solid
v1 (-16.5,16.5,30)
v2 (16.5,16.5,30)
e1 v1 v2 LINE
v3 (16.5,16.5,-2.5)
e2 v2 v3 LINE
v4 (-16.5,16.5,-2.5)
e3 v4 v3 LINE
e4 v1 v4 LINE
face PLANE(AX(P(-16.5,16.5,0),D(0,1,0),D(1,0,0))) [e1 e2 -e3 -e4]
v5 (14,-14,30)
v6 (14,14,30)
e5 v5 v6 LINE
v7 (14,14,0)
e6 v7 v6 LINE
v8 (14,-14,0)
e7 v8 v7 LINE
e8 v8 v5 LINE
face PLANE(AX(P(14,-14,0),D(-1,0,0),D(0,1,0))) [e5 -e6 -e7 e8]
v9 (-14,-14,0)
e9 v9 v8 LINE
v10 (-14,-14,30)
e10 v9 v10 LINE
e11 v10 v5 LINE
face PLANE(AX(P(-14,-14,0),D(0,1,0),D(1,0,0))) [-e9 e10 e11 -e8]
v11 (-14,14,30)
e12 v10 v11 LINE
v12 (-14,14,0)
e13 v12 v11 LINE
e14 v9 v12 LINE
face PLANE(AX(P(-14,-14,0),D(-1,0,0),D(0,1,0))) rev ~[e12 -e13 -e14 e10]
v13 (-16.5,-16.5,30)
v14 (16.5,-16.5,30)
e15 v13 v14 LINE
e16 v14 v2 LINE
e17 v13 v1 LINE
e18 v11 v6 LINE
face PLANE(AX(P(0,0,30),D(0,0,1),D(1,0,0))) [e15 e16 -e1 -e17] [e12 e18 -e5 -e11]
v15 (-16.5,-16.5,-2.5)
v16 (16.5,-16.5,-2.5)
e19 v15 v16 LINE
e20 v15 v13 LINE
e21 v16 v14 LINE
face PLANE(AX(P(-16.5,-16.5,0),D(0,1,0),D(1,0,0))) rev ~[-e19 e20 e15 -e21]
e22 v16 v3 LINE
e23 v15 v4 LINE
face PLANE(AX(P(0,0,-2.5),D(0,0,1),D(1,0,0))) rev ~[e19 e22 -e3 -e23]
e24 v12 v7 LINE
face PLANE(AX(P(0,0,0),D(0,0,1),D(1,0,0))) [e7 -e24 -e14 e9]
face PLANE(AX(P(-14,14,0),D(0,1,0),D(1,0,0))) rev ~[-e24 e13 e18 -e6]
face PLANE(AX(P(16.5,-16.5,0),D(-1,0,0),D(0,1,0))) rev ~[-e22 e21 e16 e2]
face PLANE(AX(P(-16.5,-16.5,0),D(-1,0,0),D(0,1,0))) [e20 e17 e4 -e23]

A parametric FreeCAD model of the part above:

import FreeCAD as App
import Part
import Sketcher

doc = App.newDocument("Part")
body = doc.addObject("PartDesign::Body", "Body")

# Sketch on XY plane
sketch1 = body.newObject("Sketcher::SketchObject", "Sketch")
sketch1.AttachmentSupport = (doc.getObject("XY_Plane"), [""])
sketch1.MapMode = "FlatFace"
sketch1.addGeometry([
    Part.LineSegment(App.Vector(-16, 16, 0), App.Vector(-16, -16, 0)),
    Part.LineSegment(App.Vector(-16, -16, 0), App.Vector(16, -16, 0)),
    Part.LineSegment(App.Vector(16, -16, 0), App.Vector(16, 16, 0)),
    Part.LineSegment(App.Vector(16, 16, 0), App.Vector(-16, 16, 0)),
], False)
sketch1.addConstraint([
    Sketcher.Constraint("Coincident", 0, 2, 1, 1),
    Sketcher.Constraint("Coincident", 1, 2, 2, 1),
    Sketcher.Constraint("Coincident", 2, 2, 3, 1),
    Sketcher.Constraint("Coincident", 3, 2, 0, 1),
    Sketcher.Constraint("Vertical", 0),
    Sketcher.Constraint("Horizontal", 1),
    Sketcher.Constraint("Vertical", 2),
    Sketcher.Constraint("Horizontal", 3),
    Sketcher.Constraint("Symmetric", 0, 2, 2, 2, -1, 1),
    Sketcher.Constraint("Equal", 3, 0),
    Sketcher.Constraint("DistanceX", 1, 1, 1, 2, 33.0),
])
pad1 = body.newObject("PartDesign::Pad", "Pad")
pad1.Profile = sketch1
pad1.Length = 2.5
pad1.Reversed = True

# Sketch on XY plane
sketch2 = body.newObject("Sketcher::SketchObject", "Sketch001")
sketch2.AttachmentSupport = (doc.getObject("XY_Plane"), [""])
sketch2.MapMode = "FlatFace"
sketch2.addGeometry([
    Part.LineSegment(App.Vector(-16, 16, 0), App.Vector(-16, -16, 0)),  # 0
    Part.LineSegment(App.Vector(-16, -16, 0), App.Vector(16, -16, 0)),  # 1
    Part.LineSegment(App.Vector(16, -16, 0), App.Vector(16, 16, 0)),  # 2
    Part.LineSegment(App.Vector(16, 16, 0), App.Vector(-16, 16, 0)),  # 3
    Part.LineSegment(App.Vector(14, -14, 0), App.Vector(-14, -14, 0)),  # 4
    Part.LineSegment(App.Vector(-14, -14, 0), App.Vector(-14, 14, 0)),  # 5
    Part.LineSegment(App.Vector(-14, 14, 0), App.Vector(14, 14, 0)),  # 6
    Part.LineSegment(App.Vector(14, 14, 0), App.Vector(14, -14, 0)),  # 7
], False)
sketch2.addConstraint([
    Sketcher.Constraint("Coincident", 0, 2, 1, 1),
    Sketcher.Constraint("Coincident", 1, 2, 2, 1),
    Sketcher.Constraint("Coincident", 2, 2, 3, 1),
    Sketcher.Constraint("Coincident", 3, 2, 0, 1),
    Sketcher.Constraint("Coincident", 4, 2, 5, 1),
    Sketcher.Constraint("Coincident", 5, 2, 6, 1),
    Sketcher.Constraint("Coincident", 6, 2, 7, 1),
    Sketcher.Constraint("Coincident", 7, 2, 4, 1),
    Sketcher.Constraint("Vertical", 0),
    Sketcher.Constraint("Horizontal", 1),
    Sketcher.Constraint("Vertical", 2),
    Sketcher.Constraint("Horizontal", 3),
    Sketcher.Constraint("Horizontal", 4),
    Sketcher.Constraint("Vertical", 5),
    Sketcher.Constraint("Horizontal", 6),
    Sketcher.Constraint("Vertical", 7),
    Sketcher.Constraint("Symmetric", 0, 2, 2, 2, -1, 1),
    Sketcher.Constraint("Symmetric", 4, 2, 6, 2, -1, 1),
    Sketcher.Constraint("Equal", 3, 0),
    Sketcher.Constraint("Equal", 6, 5),
    Sketcher.Constraint("DistanceX", 1, 1, 1, 2, 33.0),
    Sketcher.Constraint("DistanceX", 4, 2, 4, 1, 28.0),
])
pad2 = body.newObject("PartDesign::Pad", "Pad001")
pad2.Profile = sketch2
pad2.Length = 30

doc.recompute()
